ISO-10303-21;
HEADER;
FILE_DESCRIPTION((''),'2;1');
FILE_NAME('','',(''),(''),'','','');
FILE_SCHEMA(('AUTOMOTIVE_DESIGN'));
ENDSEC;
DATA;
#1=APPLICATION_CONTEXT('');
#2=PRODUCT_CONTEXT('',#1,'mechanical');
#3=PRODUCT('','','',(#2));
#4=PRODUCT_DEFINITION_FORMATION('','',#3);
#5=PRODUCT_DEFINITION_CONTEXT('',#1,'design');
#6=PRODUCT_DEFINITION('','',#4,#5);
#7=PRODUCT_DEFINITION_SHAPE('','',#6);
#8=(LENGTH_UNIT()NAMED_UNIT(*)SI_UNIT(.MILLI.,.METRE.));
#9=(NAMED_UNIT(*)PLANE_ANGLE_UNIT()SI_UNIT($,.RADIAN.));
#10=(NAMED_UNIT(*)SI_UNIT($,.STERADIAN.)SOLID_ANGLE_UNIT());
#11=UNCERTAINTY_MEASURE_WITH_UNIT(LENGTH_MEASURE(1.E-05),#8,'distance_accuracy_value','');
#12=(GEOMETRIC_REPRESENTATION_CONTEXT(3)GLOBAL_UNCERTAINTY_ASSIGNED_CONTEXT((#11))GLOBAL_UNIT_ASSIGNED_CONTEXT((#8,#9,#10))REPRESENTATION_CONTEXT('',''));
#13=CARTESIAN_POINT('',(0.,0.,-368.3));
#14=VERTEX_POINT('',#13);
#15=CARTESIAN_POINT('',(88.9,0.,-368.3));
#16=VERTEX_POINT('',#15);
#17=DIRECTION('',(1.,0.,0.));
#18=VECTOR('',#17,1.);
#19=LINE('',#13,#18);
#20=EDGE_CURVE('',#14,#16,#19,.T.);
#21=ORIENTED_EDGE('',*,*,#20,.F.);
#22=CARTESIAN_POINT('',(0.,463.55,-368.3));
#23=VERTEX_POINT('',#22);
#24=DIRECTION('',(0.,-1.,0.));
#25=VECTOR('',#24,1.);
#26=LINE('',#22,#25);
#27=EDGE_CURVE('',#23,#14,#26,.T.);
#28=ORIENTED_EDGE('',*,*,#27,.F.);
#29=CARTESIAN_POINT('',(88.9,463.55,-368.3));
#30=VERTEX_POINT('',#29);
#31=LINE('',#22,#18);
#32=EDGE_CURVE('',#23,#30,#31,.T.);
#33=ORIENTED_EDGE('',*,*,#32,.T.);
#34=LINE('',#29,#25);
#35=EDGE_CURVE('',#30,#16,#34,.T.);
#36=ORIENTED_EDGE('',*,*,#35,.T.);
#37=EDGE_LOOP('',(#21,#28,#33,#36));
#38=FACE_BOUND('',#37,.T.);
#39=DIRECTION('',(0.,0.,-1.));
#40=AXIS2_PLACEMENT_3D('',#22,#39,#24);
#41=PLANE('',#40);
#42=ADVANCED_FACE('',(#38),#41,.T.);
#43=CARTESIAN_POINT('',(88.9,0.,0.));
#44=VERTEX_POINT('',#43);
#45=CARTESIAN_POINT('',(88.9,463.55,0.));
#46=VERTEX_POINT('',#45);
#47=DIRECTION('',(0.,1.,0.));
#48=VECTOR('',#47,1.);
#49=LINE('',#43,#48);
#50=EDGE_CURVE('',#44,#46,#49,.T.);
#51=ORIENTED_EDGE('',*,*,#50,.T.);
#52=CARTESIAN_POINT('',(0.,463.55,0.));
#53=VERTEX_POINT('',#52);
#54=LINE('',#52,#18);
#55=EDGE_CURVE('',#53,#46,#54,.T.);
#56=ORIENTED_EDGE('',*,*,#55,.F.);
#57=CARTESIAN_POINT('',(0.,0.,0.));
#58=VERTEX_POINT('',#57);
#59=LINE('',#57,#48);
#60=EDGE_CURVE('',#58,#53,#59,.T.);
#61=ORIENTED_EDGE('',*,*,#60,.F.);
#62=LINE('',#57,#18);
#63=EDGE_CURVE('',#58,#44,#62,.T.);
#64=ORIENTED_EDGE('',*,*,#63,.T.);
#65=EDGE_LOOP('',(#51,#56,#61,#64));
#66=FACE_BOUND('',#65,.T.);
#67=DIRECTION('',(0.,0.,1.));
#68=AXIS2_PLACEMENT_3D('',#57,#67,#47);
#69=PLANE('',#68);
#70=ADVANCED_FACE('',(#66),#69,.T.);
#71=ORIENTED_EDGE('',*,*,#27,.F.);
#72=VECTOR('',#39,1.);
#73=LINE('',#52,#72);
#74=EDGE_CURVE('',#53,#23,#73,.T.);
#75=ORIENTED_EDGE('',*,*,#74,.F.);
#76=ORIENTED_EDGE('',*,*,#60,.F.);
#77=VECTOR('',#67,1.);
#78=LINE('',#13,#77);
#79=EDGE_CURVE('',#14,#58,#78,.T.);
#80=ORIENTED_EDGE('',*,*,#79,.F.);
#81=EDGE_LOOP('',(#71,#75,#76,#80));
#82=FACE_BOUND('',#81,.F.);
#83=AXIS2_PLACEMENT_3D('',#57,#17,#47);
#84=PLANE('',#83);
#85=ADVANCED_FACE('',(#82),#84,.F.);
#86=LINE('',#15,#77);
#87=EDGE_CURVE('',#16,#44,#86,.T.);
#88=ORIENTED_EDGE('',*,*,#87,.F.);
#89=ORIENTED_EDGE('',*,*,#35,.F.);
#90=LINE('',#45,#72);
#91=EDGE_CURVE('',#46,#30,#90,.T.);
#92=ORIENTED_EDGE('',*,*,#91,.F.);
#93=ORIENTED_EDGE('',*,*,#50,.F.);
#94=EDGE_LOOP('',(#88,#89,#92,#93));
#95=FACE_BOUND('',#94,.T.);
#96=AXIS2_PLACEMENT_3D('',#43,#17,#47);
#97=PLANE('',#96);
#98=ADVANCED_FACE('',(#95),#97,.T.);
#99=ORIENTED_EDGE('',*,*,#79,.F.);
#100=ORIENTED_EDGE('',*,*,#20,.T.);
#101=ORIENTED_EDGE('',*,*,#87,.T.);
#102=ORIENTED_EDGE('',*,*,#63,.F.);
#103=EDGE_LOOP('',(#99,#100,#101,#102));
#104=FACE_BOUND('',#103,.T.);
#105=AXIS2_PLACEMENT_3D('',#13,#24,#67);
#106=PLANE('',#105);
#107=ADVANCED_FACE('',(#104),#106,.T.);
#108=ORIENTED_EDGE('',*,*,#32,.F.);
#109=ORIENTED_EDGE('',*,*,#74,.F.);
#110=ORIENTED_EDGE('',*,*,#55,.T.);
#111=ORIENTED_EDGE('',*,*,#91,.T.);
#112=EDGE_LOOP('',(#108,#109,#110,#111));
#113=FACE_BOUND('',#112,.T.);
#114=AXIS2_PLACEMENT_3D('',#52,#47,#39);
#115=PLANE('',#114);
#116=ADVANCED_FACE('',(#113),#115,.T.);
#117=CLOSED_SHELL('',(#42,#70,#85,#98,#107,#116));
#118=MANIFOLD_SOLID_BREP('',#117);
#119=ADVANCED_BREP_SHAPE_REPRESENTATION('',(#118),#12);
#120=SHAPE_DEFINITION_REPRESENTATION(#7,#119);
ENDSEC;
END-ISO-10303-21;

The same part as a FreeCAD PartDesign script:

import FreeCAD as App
import Part
import Sketcher

V = App.Vector
Q = App.Units.Quantity

doc = App.newDocument("Part")
params = doc.addObject("Spreadsheet::Sheet", "Params")
for row, (alias, value) in enumerate([
    ("sketch1_height", "14.5 in"),
    ("sketch1_width", "18.25 in"),
    ("pad1_length", "3.5 in"),
], start=1):
    params.set(f"A{row}", alias)
    params.set(f"B{row}", "=" + value)
    params.setAlias(f"B{row}", alias)

body = doc.addObject("PartDesign::Body", "Body")

sketch1 = body.newObject("Sketcher::SketchObject", "Sketch")
sketch1.AttachmentSupport = (doc.getObject("YZ_Plane"), [""])
sketch1.MapMode = "FlatFace"
sketch1.addGeometry([
    Part.LineSegment(V(463.55, 0, 0), V(0, 0, 0)),
    Part.LineSegment(V(0, 0, 0), V(0, -368.3, 0)),
    Part.LineSegment(V(0, -368.3, 0), V(463.55, -368.3, 0)),
    Part.LineSegment(V(463.55, -368.3, 0), V(463.55, 0, 0)),
], False)
sketch1.addConstraint([
    Sketcher.Constraint("Coincident", 0, 2, 1, 1),
    Sketcher.Constraint("Coincident", 1, 2, 2, 1),
    Sketcher.Constraint("Coincident", 2, 2, 3, 1),
    Sketcher.Constraint("Coincident", 3, 2, 0, 1),
    Sketcher.Constraint("Horizontal", 0),
    Sketcher.Constraint("Vertical", 1),
    Sketcher.Constraint("Horizontal", 2),
    Sketcher.Constraint("Vertical", 3),
    Sketcher.Constraint("Coincident", 0, 2, -1, 1),
    Sketcher.Constraint("DistanceY", 1, 2, 1, 1, Q("14.5 in")),
    Sketcher.Constraint("DistanceX", 0, 2, 0, 1, Q("18.25 in")),
])
sketch1.setExpression("Constraints[9]", "Params.sketch1_height")
sketch1.setExpression("Constraints[10]", "Params.sketch1_width")
pad1 = body.newObject("PartDesign::Pad", "Pad")
pad1.Profile = sketch1
pad1.setExpression("Length", "Params.pad1_length")

doc.recompute()
